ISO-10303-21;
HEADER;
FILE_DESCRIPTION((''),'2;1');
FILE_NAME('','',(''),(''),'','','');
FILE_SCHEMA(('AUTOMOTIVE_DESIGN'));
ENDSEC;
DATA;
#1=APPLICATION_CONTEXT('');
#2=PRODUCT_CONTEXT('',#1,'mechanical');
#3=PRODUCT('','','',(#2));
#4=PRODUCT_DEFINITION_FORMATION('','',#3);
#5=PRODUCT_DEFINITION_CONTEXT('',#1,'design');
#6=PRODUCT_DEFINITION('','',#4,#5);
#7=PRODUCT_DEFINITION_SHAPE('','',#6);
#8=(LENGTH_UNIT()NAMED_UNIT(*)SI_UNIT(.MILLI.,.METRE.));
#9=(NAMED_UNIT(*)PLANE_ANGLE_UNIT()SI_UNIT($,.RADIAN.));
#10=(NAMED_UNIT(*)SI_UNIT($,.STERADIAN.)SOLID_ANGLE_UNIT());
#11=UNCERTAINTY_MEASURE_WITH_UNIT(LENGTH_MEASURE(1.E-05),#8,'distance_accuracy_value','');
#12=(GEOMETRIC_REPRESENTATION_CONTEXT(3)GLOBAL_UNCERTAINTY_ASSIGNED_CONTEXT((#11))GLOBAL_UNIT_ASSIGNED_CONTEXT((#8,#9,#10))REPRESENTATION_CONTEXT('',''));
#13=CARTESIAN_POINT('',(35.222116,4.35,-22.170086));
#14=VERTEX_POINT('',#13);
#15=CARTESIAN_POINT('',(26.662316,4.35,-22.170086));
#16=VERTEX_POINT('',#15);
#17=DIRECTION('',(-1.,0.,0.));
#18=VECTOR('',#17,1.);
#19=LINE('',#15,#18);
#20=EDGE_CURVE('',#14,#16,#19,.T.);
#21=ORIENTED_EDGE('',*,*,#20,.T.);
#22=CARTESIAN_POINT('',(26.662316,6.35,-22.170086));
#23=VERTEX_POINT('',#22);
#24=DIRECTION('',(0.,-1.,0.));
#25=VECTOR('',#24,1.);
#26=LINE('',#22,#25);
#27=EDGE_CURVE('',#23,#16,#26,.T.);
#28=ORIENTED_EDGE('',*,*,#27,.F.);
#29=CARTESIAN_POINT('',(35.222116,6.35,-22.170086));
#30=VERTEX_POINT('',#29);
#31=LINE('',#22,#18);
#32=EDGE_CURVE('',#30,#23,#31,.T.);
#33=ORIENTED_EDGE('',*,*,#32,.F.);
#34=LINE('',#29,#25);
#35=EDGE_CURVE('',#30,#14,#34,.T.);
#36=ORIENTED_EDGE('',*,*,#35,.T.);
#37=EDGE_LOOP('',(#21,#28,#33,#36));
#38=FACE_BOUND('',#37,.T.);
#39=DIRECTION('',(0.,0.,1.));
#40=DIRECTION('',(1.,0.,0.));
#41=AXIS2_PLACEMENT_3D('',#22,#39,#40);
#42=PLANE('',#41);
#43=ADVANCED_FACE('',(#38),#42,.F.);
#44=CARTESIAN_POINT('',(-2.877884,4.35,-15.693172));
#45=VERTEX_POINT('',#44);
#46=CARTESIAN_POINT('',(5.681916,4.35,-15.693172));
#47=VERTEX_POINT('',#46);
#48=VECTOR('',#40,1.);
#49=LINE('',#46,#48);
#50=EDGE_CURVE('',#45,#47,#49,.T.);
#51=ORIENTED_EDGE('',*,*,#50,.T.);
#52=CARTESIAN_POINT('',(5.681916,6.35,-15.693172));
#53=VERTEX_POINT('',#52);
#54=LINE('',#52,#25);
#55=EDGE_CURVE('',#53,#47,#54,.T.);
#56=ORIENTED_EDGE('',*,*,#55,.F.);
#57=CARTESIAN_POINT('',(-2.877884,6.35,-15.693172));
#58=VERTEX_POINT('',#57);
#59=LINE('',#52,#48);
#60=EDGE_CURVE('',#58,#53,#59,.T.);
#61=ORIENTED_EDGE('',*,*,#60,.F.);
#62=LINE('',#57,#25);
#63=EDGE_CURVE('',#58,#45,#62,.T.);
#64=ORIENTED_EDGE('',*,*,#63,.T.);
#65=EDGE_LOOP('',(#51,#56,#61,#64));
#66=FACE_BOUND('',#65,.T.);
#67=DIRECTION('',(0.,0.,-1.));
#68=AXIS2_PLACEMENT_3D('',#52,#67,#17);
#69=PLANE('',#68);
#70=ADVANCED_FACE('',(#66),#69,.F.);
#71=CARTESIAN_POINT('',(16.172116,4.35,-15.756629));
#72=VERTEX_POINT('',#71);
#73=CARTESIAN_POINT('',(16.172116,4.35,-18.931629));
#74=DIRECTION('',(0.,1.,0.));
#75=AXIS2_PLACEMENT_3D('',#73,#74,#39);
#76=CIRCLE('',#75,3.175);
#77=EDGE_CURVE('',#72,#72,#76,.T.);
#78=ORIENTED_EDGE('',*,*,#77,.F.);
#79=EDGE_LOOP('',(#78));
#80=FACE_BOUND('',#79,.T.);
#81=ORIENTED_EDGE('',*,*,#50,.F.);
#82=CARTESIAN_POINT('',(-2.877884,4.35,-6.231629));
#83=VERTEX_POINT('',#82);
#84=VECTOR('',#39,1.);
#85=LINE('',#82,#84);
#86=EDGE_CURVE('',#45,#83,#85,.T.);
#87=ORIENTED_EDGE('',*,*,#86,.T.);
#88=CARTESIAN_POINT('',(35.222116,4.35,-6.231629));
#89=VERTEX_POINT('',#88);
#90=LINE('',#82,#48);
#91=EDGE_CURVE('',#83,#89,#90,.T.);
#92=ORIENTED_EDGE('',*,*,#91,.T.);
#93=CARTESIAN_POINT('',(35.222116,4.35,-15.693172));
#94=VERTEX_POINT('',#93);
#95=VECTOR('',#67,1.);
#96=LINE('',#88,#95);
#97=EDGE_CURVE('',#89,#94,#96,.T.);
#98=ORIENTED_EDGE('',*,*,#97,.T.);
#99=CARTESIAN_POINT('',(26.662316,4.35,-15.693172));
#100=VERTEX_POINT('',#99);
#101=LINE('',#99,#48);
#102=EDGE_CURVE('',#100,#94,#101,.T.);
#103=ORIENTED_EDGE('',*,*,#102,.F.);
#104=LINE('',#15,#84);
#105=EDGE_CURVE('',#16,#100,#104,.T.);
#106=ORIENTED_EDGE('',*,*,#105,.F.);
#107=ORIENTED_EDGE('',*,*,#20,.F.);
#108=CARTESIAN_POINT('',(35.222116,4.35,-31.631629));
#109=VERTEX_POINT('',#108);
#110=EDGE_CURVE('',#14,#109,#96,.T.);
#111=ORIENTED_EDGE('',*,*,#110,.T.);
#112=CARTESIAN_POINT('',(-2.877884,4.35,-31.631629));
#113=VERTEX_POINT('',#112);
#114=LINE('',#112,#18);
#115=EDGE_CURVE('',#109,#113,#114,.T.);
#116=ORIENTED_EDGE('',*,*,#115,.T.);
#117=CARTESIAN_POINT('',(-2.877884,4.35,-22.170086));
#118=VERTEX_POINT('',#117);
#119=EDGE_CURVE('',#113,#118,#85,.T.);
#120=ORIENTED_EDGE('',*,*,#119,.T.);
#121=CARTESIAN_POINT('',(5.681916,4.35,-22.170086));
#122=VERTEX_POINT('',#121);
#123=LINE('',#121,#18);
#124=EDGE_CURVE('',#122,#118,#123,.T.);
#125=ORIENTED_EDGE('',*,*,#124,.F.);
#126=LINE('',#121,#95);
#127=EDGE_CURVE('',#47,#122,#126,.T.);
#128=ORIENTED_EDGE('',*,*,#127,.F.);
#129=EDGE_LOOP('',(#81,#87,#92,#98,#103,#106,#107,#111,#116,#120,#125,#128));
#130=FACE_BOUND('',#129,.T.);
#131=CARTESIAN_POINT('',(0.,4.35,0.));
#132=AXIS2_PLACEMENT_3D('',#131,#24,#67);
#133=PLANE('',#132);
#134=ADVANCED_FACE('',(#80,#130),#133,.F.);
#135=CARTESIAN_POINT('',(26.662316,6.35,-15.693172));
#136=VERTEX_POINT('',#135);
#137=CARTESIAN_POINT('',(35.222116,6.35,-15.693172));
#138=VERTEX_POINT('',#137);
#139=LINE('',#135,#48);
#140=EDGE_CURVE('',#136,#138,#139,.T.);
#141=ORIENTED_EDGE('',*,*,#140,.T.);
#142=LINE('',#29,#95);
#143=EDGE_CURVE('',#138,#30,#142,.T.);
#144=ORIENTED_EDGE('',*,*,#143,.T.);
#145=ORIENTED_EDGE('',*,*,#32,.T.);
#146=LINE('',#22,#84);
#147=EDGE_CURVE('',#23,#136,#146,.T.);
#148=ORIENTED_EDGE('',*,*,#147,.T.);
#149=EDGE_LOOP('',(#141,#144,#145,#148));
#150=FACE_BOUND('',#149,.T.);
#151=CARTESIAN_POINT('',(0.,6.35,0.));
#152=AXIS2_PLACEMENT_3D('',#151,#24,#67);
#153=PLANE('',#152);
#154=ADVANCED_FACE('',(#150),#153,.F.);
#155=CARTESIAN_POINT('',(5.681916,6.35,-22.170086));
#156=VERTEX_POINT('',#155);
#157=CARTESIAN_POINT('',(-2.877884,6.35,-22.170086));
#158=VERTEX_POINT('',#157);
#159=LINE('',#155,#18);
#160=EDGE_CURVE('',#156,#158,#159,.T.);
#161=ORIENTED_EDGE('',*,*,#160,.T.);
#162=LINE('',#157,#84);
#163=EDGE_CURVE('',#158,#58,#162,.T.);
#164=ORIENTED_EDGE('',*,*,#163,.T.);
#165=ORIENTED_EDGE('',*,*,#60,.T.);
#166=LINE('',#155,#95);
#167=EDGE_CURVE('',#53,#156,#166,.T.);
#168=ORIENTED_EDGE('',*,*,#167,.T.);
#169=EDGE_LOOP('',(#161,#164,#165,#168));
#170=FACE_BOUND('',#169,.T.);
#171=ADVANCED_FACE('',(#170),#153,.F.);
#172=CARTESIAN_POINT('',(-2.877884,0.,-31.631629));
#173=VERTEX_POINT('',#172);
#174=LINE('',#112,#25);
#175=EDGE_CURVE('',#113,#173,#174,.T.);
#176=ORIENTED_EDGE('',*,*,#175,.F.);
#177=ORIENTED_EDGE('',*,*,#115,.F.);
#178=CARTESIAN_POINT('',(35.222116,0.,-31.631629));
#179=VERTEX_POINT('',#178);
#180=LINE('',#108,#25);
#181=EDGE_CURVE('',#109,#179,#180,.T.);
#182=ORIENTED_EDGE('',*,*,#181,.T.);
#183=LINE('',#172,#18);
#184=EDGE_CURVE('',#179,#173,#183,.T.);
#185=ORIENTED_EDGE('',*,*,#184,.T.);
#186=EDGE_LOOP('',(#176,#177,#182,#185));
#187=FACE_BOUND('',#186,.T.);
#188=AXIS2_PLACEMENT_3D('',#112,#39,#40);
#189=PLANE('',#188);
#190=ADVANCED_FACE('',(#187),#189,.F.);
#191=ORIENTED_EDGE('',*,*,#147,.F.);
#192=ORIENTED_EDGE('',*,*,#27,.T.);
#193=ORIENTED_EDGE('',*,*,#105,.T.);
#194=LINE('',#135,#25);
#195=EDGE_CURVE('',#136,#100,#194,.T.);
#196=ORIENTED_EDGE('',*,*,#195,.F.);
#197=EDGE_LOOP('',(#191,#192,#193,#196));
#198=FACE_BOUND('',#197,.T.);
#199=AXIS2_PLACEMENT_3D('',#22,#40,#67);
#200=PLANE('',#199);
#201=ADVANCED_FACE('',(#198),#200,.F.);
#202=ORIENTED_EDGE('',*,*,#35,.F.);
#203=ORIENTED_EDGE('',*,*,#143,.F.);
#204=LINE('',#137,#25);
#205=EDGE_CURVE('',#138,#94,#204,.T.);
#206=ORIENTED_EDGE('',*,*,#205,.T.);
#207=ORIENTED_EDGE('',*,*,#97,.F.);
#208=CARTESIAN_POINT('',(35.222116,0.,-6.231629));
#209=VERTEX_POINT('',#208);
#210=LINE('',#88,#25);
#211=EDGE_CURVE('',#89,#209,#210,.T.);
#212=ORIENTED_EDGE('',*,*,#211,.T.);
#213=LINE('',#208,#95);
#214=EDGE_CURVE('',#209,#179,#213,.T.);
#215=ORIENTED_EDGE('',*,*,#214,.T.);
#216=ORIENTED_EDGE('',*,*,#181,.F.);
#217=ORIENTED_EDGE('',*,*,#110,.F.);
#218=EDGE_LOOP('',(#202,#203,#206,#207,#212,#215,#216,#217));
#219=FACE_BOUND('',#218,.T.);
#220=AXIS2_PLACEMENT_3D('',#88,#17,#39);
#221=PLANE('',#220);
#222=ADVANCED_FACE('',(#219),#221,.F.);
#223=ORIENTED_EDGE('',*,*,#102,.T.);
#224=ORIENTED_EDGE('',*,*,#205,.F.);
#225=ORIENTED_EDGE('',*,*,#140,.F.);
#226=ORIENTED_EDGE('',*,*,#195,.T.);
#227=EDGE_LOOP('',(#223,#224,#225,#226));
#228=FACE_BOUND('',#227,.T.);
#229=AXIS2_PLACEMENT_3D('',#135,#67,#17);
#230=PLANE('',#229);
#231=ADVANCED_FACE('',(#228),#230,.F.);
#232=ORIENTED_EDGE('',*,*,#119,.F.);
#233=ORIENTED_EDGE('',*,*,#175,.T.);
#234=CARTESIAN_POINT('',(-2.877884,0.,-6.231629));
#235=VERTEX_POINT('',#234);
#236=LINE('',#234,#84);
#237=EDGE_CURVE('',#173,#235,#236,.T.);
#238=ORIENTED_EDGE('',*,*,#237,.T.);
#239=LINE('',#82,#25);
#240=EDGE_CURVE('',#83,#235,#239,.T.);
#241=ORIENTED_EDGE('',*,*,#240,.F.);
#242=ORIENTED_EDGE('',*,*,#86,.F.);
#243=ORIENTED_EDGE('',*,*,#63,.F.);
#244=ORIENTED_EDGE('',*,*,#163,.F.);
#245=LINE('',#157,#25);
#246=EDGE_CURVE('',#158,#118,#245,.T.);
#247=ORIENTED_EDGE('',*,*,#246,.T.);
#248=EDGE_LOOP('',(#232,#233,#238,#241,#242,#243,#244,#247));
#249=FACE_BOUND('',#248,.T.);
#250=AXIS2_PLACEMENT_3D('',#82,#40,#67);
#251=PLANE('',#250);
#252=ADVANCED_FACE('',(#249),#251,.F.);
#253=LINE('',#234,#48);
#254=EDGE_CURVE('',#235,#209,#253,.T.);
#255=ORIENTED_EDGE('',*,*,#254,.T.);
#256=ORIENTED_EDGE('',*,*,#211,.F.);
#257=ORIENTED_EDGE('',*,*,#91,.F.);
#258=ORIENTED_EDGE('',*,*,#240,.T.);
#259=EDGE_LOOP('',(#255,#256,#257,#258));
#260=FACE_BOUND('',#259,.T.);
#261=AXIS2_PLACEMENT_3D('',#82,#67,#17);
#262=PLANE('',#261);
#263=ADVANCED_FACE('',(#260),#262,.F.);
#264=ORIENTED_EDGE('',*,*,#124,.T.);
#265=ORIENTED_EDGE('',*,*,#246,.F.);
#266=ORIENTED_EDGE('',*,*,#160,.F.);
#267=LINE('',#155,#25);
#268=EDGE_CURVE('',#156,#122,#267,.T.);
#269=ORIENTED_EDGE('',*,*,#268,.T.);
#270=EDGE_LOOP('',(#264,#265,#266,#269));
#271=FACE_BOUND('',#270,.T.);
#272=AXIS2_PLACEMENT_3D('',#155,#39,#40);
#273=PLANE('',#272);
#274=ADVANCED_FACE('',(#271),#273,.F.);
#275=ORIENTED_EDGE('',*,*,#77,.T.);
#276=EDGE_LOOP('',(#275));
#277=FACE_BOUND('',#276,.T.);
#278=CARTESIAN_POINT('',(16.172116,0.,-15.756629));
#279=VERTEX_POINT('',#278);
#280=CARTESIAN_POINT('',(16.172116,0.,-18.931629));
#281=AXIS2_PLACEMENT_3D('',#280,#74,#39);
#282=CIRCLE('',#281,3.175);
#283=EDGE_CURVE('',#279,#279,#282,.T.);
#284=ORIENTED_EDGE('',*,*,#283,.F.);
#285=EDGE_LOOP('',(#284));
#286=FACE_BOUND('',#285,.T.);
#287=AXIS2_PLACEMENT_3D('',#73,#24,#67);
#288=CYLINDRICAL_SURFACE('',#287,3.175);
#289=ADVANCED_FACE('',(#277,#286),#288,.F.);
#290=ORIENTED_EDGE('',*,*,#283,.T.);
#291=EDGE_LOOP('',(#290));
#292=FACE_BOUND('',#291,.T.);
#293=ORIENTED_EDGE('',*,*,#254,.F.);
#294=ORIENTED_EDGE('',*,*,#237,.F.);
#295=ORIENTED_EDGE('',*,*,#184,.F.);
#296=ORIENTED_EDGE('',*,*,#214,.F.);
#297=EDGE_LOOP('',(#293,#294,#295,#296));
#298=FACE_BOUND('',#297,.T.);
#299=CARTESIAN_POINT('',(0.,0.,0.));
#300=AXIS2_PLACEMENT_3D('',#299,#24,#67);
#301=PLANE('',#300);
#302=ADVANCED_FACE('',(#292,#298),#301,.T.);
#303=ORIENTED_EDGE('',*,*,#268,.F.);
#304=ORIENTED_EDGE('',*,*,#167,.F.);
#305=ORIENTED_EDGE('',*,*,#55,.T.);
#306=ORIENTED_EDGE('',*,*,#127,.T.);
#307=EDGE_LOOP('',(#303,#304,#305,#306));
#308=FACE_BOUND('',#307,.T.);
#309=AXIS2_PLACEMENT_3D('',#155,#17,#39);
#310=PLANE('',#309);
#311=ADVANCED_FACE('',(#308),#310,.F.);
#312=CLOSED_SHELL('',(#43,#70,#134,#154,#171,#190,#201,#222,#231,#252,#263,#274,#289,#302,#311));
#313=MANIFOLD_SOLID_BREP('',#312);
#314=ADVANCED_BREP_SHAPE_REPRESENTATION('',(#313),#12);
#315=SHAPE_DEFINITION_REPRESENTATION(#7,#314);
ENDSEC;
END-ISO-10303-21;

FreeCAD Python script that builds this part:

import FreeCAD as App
import Part
import Sketcher

V = App.Vector
Q = App.Units.Quantity


def add_polygon(sketch, points):
    """Adds a closed chain of lines whose ends are joined by coincident constraints."""
    first, n = sketch.GeometryCount, len(points)
    for a, b in zip(points, points[1:] + points[:1]):
        sketch.addGeometry(Part.LineSegment(App.Vector(*a, 0), App.Vector(*b, 0)), False)
    for i in range(n):
        sketch.addConstraint(Sketcher.Constraint("Coincident", first + i, 2, first + (i + 1) % n, 1))

doc = App.newDocument("Part")
params = doc.addObject("Spreadsheet::Sheet", "Params")
for row, (alias, value) in enumerate([
    ("sketch1_diameter", "0.25 in"),
    ("sketch1_height", "1 in"),
    ("sketch1_width", "1.5 in"),
    ("pad1_length", "4.35 mm"),
    ("sketch2_width", "0.337 in"),
    ("pad2_length", "2 mm"),
], start=1):
    params.set(f"A{row}", alias)
    params.set(f"B{row}", "=" + value)
    params.setAlias(f"B{row}", alias)

body = doc.addObject("PartDesign::Body", "Body")

# Sketch on XZ plane
sketch1 = body.newObject("Sketcher::SketchObject", "Sketch")
sketch1.AttachmentSupport = (doc.getObject("XZ_Plane"), [""])
sketch1.MapMode = "FlatFace"
add_polygon(sketch1, [(-2.9, -31.6), (-2.9, -6.2), (35.2, -6.2), (35.2, -31.6)])  # lines 0-3
sketch1.addGeometry(Part.Circle(V(16.2, -18.9, 0), V(0, 0, 1), 3.2), False)  # 4
sketch1.addConstraint([
    Sketcher.Constraint("Vertical", 0),
    Sketcher.Constraint("Horizontal", 1),
    Sketcher.Constraint("Vertical", 2),
    Sketcher.Constraint("Horizontal", 3),
    Sketcher.Constraint("Diameter", 4, Q("0.25 in")),
    Sketcher.Constraint("DistanceY", 0, 1, 0, 2, Q("1 in")),
    Sketcher.Constraint("DistanceX", 1, 1, 1, 2, Q("1.5 in")),
    Sketcher.Constraint("DistanceY", 4, 3, 0, 2, Q("0.5 in")),
    Sketcher.Constraint("DistanceX", 0, 2, 4, 3, Q("0.75 in")),
    Sketcher.Constraint("DistanceY", 4, 3, -1, 1, 18.931629),
    Sketcher.Constraint("DistanceX", -1, 1, 4, 3, 16.172116),
])
sketch1.setExpression("Constraints[8]", "Params.sketch1_diameter")
sketch1.setExpression("Constraints[9]", "Params.sketch1_height")
sketch1.setExpression("Constraints[10]", "Params.sketch1_width")
pad1 = body.newObject("PartDesign::Pad", "Pad")
pad1.Profile = sketch1
pad1.setExpression("Length", "Params.pad1_length")
pad1.Reversed = True

# Sketch on XZ plane
sketch2 = body.newObject("Sketcher::SketchObject", "Sketch001")
sketch2.AttachmentSupport = (doc.getObject("XZ_Plane"), [""])
sketch2.MapMode = "FlatFace"
sketch2.AttachmentOffset = App.Placement(V(0, 0, -4.35), App.Rotation())
add_polygon(sketch2, [(-3, -22), (-3, -16), (6, -16), (6, -22)])  # lines 0-3
add_polygon(sketch2, [(27, -22), (27, -16), (35, -16), (35, -22)])  # lines 4-7
sketch2.addConstraint([
    Sketcher.Constraint("Vertical", 0),
    Sketcher.Constraint("Horizontal", 1),
    Sketcher.Constraint("Vertical", 2),
    Sketcher.Constraint("Horizontal", 3),
    Sketcher.Constraint("Vertical", 4),
    Sketcher.Constraint("Horizontal", 5),
    Sketcher.Constraint("Vertical", 6),
    Sketcher.Constraint("Horizontal", 7),
    Sketcher.Constraint("Horizontal", 1, 2, 4, 2),
    Sketcher.Constraint("Horizontal", 3, 2, 6, 2),
    Sketcher.Constraint("Equal", 3, 5),
    Sketcher.Constraint("DistanceX", 0, 2, 5, 2, Q("1.5 in")),
    Sketcher.Constraint("DistanceX", 1, 1, 1, 2, Q("0.337 in")),
    Sketcher.Constraint("DistanceY", 0, 1, 0, 2, 6.476914),
    Sketcher.Constraint("DistanceY", 0, 2, -1, 1, 15.693172),
    Sketcher.Constraint("DistanceX", 0, 2, -1, 1, 2.877884),
])
sketch2.setExpression("Constraints[20]", "Params.sketch2_width")
pad2 = body.newObject("PartDesign::Pad", "Pad001")
pad2.Profile = sketch2
pad2.setExpression("Length", "Params.pad2_length")
pad2.Reversed = True

doc.recompute()
